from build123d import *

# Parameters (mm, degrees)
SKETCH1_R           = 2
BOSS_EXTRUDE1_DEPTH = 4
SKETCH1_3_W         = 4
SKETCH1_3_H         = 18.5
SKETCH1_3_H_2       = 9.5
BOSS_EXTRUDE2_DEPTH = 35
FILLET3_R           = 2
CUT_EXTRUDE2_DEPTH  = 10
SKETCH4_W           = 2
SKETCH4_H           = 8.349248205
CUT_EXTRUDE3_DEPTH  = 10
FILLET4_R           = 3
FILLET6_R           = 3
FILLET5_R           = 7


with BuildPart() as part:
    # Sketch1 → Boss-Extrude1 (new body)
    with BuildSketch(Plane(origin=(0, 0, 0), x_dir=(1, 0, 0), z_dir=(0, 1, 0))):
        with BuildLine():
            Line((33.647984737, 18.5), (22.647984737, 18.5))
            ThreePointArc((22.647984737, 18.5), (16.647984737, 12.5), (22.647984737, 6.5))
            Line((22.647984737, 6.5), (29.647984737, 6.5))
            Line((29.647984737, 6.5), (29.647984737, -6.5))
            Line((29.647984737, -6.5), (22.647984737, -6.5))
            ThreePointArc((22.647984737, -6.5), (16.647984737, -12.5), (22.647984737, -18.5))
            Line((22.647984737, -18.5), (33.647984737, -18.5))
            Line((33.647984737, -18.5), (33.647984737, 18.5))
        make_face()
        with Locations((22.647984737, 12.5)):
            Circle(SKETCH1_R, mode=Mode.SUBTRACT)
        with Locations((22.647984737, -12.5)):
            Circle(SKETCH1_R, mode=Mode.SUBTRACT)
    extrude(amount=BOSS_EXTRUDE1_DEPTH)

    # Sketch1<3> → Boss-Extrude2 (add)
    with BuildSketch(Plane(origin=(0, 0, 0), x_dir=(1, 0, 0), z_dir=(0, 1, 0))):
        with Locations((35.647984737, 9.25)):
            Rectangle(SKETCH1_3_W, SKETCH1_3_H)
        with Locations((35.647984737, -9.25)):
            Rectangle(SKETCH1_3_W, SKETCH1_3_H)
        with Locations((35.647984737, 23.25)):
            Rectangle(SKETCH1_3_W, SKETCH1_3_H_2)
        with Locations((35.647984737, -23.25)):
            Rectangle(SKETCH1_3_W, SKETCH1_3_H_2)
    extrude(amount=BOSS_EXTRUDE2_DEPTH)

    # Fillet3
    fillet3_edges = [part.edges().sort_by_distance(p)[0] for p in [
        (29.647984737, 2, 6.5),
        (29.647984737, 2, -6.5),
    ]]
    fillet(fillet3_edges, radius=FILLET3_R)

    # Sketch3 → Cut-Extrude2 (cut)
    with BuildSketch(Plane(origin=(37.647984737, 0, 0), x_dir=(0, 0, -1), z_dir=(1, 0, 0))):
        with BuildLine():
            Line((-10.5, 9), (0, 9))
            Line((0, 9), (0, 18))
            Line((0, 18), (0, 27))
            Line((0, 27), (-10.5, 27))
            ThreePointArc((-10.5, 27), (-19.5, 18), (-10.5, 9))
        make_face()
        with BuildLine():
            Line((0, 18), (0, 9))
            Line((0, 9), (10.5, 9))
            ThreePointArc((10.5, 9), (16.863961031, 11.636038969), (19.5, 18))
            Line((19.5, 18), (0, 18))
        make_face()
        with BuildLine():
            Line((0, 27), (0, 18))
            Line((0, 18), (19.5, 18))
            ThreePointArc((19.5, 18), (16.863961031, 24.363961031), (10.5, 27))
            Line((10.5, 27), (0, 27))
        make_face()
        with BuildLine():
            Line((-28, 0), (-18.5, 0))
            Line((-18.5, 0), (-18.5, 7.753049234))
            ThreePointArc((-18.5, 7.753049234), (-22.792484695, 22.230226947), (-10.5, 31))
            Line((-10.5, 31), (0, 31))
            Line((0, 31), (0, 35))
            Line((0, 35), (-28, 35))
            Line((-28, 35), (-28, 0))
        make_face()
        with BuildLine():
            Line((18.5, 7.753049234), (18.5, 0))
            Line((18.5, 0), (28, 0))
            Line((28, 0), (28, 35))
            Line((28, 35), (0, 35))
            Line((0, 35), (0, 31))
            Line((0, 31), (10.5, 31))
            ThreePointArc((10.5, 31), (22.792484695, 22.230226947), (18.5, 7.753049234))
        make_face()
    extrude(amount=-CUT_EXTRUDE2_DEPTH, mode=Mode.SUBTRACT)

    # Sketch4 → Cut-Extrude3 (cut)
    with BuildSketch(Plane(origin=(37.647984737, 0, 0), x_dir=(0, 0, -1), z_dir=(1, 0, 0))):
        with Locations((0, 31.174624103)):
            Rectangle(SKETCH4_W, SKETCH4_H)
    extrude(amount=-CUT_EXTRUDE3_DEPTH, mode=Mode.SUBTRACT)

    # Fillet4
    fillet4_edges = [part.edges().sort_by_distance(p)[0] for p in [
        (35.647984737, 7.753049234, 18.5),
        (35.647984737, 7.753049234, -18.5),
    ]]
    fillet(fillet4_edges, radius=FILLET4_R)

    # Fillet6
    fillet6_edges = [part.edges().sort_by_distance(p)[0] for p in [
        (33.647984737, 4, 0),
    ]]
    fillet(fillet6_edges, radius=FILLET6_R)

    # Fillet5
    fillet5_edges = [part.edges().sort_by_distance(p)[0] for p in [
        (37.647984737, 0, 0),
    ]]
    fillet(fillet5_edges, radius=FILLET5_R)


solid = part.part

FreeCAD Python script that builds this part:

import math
import FreeCAD as App
import Part
import Sketcher
from FreeCAD import Vector
Q = App.Units.Quantity


def edges_at(feature, points):
    """Names of the edges that pass closest to the given points."""
    edges = feature.Shape.Edges
    near = lambda p: min(range(len(edges)), key=lambda i: edges[i].distToShape(Part.Vertex(*p))[0])
    return sorted({f"Edge{near(p) + 1}" for p in points})

doc = App.newDocument("Part")
body = doc.addObject("PartDesign::Body", "Body")

# Sketch on XZ plane
sketch1 = body.newObject("Sketcher::SketchObject", "Sketch")
sketch1.AttachmentSupport = (doc.getObject("XZ_Plane"), [""])
sketch1.MapMode = "FlatFace"
sketch1.addGeometry([
    Part.LineSegment(Vector(33.6, -18.5, 0), Vector(22.6, -18.5, 0)),  # 0
    Part.ArcOfCircle(Part.Circle(Vector(22.6, -12.5, 0), Vector(0, 0, 1), 6), math.radians(90), math.radians(270)),  # 1
    Part.LineSegment(Vector(22.6, -6.5, 0), Vector(29.6, -6.5, 0)),  # 2
    Part.LineSegment(Vector(29.6, -6.5, 0), Vector(29.6, 6.5, 0)),  # 3
    Part.LineSegment(Vector(29.6, 6.5, 0), Vector(22.6, 6.5, 0)),  # 4
    Part.ArcOfCircle(Part.Circle(Vector(22.6, 12.5, 0), Vector(0, 0, 1), 6), math.radians(90), math.radians(270)),  # 5
    Part.LineSegment(Vector(22.6, 18.5, 0), Vector(33.6, 18.5, 0)),  # 6
    Part.LineSegment(Vector(33.6, 18.5, 0), Vector(33.6, -18.5, 0)),  # 7
    Part.Circle(Vector(22.6, 12.5, 0), Vector(0, 0, 1), 2),  # 8
    Part.Circle(Vector(22.6, -12.5, 0), Vector(0, 0, 1), 2),  # 9
], False)
sketch1.addConstraint([
    Sketcher.Constraint("Tangent", 0, 2, 1, 2),
    Sketcher.Constraint("Tangent", 1, 1, 2, 1),
    Sketcher.Constraint("Coincident", 2, 2, 3, 1),
    Sketcher.Constraint("Coincident", 3, 2, 4, 1),
    Sketcher.Constraint("Tangent", 4, 2, 5, 2),
    Sketcher.Constraint("Tangent", 5, 1, 6, 1),
    Sketcher.Constraint("Coincident", 6, 2, 7, 1),
    Sketcher.Constraint("Coincident", 7, 2, 0, 1),
    Sketcher.Constraint("Horizontal", 0),
    Sketcher.Constraint("Horizontal", 2),
    Sketcher.Constraint("Vertical", 3),
    Sketcher.Constraint("Horizontal", 4),
    Sketcher.Constraint("Horizontal", 6),
    Sketcher.Constraint("Vertical", 7),
    Sketcher.Constraint("Coincident", 8, 3, 5, 3),
    Sketcher.Constraint("Coincident", 9, 3, 1, 3),
    Sketcher.Constraint("Equal", 1, 5),
    Sketcher.Constraint("Equal", 8, 9),
    Sketcher.Constraint("Symmetric", 1, 3, 5, 3, -1),
    Sketcher.Constraint("Diameter", 8, Q("4 mm")),
    Sketcher.Constraint("Radius", 1, Q("6 mm")),
    Sketcher.Constraint("DistanceX", 0, 2, 0, 1, Q("11 mm")),
    Sketcher.Constraint("DistanceX", 2, 1, 2, 2, Q("7 mm")),
    Sketcher.Constraint("DistanceY", 3, 1, 3, 2, Q("13 mm")),
    Sketcher.Constraint("DistanceX", -1, 1, 1, 3, Q("22.647985 mm")),
])
pad1 = body.newObject("PartDesign::Pad", "Pad")
pad1.Profile = sketch1
pad1.Length = 4
pad1.Reversed = True

# Sketch on XZ plane
sketch2 = body.newObject("Sketcher::SketchObject", "Sketch001")
sketch2.AttachmentSupport = (doc.getObject("XZ_Plane"), [""])
sketch2.MapMode = "FlatFace"
sketch2.addGeometry([
    Part.LineSegment(Vector(37.6, -28, 0), Vector(33.6, -28, 0)),
    Part.LineSegment(Vector(33.6, -28, 0), Vector(33.6, 28, 0)),
    Part.LineSegment(Vector(33.6, 28, 0), Vector(37.6, 28, 0)),
    Part.LineSegment(Vector(37.6, 28, 0), Vector(37.6, -28, 0)),
], False)
sketch2.addConstraint([
    Sketcher.Constraint("Coincident", 0, 2, 1, 1),
    Sketcher.Constraint("Coincident", 1, 2, 2, 1),
    Sketcher.Constraint("Coincident", 2, 2, 3, 1),
    Sketcher.Constraint("Coincident", 3, 2, 0, 1),
    Sketcher.Constraint("Horizontal", 0),
    Sketcher.Constraint("Vertical", 1),
    Sketcher.Constraint("Horizontal", 2),
    Sketcher.Constraint("Vertical", 3),
    Sketcher.Constraint("DistanceX", 0, 2, 0, 1, Q("4 mm")),
    Sketcher.Constraint("DistanceY", 1, 1, 1, 2, Q("56 mm")),
    Sketcher.Constraint("DistanceY", 0, 2, -1, 1, Q("28 mm")),
    Sketcher.Constraint("DistanceX", -1, 1, 0, 2, Q("33.647985 mm")),
])
pad2 = body.newObject("PartDesign::Pad", "Pad001")
pad2.Profile = sketch2
pad2.Length = 35
pad2.Reversed = True
doc.recompute()

fillet = body.newObject("PartDesign::Fillet", "Fillet")
fillet.Base = (pad2, edges_at(pad2, [(29.648, 2, 6.5), (29.648, 2, -6.5)]))
fillet.Radius = 2

# Sketch on YZ plane
sketch3 = body.newObject("Sketcher::SketchObject", "Sketch002")
sketch3.AttachmentSupport = (doc.getObject("YZ_Plane"), [""])
sketch3.MapMode = "FlatFace"
sketch3.AttachmentOffset = App.Placement(Vector(0, 0, 37.647985), App.Rotation())
sketch3.addGeometry([
    Part.LineSegment(Vector(9, 10, 0), Vector(9, -10, 0)),  # 0
    Part.ArcOfCircle(Part.Circle(Vector(18, -11, 0), Vector(0, 0, 1), 9), math.radians(180), math.radians(270)),  # 1
    Part.ArcOfCircle(Part.Circle(Vector(18, -11, 0), Vector(0, 0, 1), 9), math.radians(-90), math.radians(0)),  # 2
    Part.LineSegment(Vector(27, -10, 0), Vector(27, 10, 0)),  # 3
    Part.ArcOfCircle(Part.Circle(Vector(18, 10, 0), Vector(0, 0, 1), 9), math.radians(0), math.radians(180)),  # 4
    Part.LineSegment(Vector(0, 28, 0), Vector(0, 18, 0)),  # 5
    Part.LineSegment(Vector(0, 18, 0), Vector(8, 18, 0)),  # 6
    Part.ArcOfCircle(Part.Circle(Vector(18, 10, 0), Vector(0, 0, 1), 13), math.radians(0), math.radians(142)),  # 7
    Part.LineSegment(Vector(31, 10, 0), Vector(31, -10, 0)),  # 8
    Part.ArcOfCircle(Part.Circle(Vector(18, -10, 0), Vector(0, 0, 1), 13), math.radians(-142), math.radians(0)),  # 9
    Part.LineSegment(Vector(8, -18, 0), Vector(0, -18, 0)),  # 10
    Part.LineSegment(Vector(0, -18, 0), Vector(0, -28, 0)),  # 11
    Part.LineSegment(Vector(0, -28, 0), Vector(35, -28, 0)),  # 12
    Part.LineSegment(Vector(35, -28, 0), Vector(35, 28, 0)),  # 13
    Part.LineSegment(Vector(35, 28, 0), Vector(0, 28, 0)),  # 14
], False)
sketch3.addConstraint([
    Sketcher.Constraint("Tangent", 0, 2, 1, 1),
    Sketcher.Constraint("Tangent", 1, 2, 2, 1),
    Sketcher.Constraint("Tangent", 2, 2, 3, 1),
    Sketcher.Constraint("Tangent", 3, 2, 4, 1),
    Sketcher.Constraint("Tangent", 4, 2, 0, 1),
    Sketcher.Constraint("Coincident", 5, 2, 6, 1),
    Sketcher.Constraint("Coincident", 6, 2, 7, 2),
    Sketcher.Constraint("Tangent", 7, 1, 8, 1),
    Sketcher.Constraint("Tangent", 8, 2, 9, 2),
    Sketcher.Constraint("Coincident", 9, 1, 10, 1),
    Sketcher.Constraint("Coincident", 10, 2, 11, 1),
    Sketcher.Constraint("Coincident", 11, 2, 12, 1),
    Sketcher.Constraint("Coincident", 12, 2, 13, 1),
    Sketcher.Constraint("Coincident", 13, 2, 14, 1),
    Sketcher.Constraint("Coincident", 14, 2, 5, 1),
    Sketcher.Constraint("Vertical", 0),
    Sketcher.Constraint("Vertical", 3),
    Sketcher.Constraint("Vertical", 5),
    Sketcher.Constraint("Horizontal", 6),
    Sketcher.Constraint("Vertical", 8),
    Sketcher.Constraint("Horizontal", 10),
    Sketcher.Constraint("Vertical", 11),
    Sketcher.Constraint("Horizontal", 12),
    Sketcher.Constraint("Vertical", 13),
    Sketcher.Constraint("Horizontal", 14),
    Sketcher.Constraint("Coincident", 7, 3, 4, 3),
    Sketcher.Constraint("Coincident", 9, 3, 1, 3),
    Sketcher.Constraint("Equal", 1, 2),
    Sketcher.Constraint("Symmetric", 5, 2, 10, 2, -1, 1),
    Sketcher.Constraint("Symmetric", 11, 2, 14, 2, -1),
    Sketcher.Constraint("Vertical", 9, 3, 1, 2),
    Sketcher.Constraint("Vertical", 6, 2, 9, 1),
    Sketcher.Constraint("Radius", 1, Q("9 mm")),
    Sketcher.Constraint("Radius", 7, Q("13 mm")),
    Sketcher.Constraint("DistanceX", 12, 1, 12, 2, Q("35 mm")),
    Sketcher.Constraint("DistanceY", 0, 2, 0, 1, Q("21 mm")),
    Sketcher.Constraint("DistanceY", 13, 1, 13, 2, Q("56 mm")),
    Sketcher.Constraint("DistanceY", 5, 2, 5, 1, Q("9.5 mm")),
    Sketcher.Constraint("DistanceX", -1, 1, 1, 3, Q("18 mm")),
])
pocket1 = body.newObject("PartDesign::Pocket", "Pocket")
pocket1.Profile = sketch3
pocket1.Length = 10

# Sketch on YZ plane
sketch4 = body.newObject("Sketcher::SketchObject", "Sketch003")
sketch4.AttachmentSupport = (doc.getObject("YZ_Plane"), [""])
sketch4.MapMode = "FlatFace"
sketch4.AttachmentOffset = App.Placement(Vector(0, 0, 37.647985), App.Rotation())
sketch4.addGeometry([
    Part.LineSegment(Vector(35.3, 1, 0), Vector(27, 1, 0)),
    Part.LineSegment(Vector(27, 1, 0), Vector(27, -1, 0)),
    Part.LineSegment(Vector(27, -1, 0), Vector(35.3, -1, 0)),
    Part.LineSegment(Vector(35.3, -1, 0), Vector(35.3, 1, 0)),
], False)
sketch4.addConstraint([
    Sketcher.Constraint("Coincident", 0, 2, 1, 1),
    Sketcher.Constraint("Coincident", 1, 2, 2, 1),
    Sketcher.Constraint("Coincident", 2, 2, 3, 1),
    Sketcher.Constraint("Coincident", 3, 2, 0, 1),
    Sketcher.Constraint("Horizontal", 0),
    Sketcher.Constraint("Vertical", 1),
    Sketcher.Constraint("Horizontal", 2),
    Sketcher.Constraint("Vertical", 3),
    Sketcher.Constraint("DistanceY", 1, 2, 1, 1, Q("2 mm")),
    Sketcher.Constraint("DistanceX", -1, 1, 0, 2, Q("27 mm")),
    Sketcher.Constraint("DistanceY", -1, 1, 0, 2, Q("1 mm")),
    Sketcher.Constraint("DistanceX", 0, 2, 0, 1, Q("8.349248 mm")),
])
pocket2 = body.newObject("PartDesign::Pocket", "Pocket001")
pocket2.Profile = sketch4
pocket2.Length = 10
doc.recompute()

fillet2 = body.newObject("PartDesign::Fillet", "Fillet001")
fillet2.Base = (pocket2, edges_at(pocket2, [(35.648, 7.753, 18.5), (35.648, 7.753, -18.5)]))
fillet2.Radius = 3
doc.recompute()

fillet3 = body.newObject("PartDesign::Fillet", "Fillet002")
fillet3.Base = (fillet2, edges_at(fillet2, [(33.648, 4, 0)]))
fillet3.Radius = 3
doc.recompute()

fillet4 = body.newObject("PartDesign::Fillet", "Fillet003")
fillet4.Base = (fillet3, edges_at(fillet3, [(37.648, 0, 0)]))
fillet4.Radius = 7

doc.recompute()
